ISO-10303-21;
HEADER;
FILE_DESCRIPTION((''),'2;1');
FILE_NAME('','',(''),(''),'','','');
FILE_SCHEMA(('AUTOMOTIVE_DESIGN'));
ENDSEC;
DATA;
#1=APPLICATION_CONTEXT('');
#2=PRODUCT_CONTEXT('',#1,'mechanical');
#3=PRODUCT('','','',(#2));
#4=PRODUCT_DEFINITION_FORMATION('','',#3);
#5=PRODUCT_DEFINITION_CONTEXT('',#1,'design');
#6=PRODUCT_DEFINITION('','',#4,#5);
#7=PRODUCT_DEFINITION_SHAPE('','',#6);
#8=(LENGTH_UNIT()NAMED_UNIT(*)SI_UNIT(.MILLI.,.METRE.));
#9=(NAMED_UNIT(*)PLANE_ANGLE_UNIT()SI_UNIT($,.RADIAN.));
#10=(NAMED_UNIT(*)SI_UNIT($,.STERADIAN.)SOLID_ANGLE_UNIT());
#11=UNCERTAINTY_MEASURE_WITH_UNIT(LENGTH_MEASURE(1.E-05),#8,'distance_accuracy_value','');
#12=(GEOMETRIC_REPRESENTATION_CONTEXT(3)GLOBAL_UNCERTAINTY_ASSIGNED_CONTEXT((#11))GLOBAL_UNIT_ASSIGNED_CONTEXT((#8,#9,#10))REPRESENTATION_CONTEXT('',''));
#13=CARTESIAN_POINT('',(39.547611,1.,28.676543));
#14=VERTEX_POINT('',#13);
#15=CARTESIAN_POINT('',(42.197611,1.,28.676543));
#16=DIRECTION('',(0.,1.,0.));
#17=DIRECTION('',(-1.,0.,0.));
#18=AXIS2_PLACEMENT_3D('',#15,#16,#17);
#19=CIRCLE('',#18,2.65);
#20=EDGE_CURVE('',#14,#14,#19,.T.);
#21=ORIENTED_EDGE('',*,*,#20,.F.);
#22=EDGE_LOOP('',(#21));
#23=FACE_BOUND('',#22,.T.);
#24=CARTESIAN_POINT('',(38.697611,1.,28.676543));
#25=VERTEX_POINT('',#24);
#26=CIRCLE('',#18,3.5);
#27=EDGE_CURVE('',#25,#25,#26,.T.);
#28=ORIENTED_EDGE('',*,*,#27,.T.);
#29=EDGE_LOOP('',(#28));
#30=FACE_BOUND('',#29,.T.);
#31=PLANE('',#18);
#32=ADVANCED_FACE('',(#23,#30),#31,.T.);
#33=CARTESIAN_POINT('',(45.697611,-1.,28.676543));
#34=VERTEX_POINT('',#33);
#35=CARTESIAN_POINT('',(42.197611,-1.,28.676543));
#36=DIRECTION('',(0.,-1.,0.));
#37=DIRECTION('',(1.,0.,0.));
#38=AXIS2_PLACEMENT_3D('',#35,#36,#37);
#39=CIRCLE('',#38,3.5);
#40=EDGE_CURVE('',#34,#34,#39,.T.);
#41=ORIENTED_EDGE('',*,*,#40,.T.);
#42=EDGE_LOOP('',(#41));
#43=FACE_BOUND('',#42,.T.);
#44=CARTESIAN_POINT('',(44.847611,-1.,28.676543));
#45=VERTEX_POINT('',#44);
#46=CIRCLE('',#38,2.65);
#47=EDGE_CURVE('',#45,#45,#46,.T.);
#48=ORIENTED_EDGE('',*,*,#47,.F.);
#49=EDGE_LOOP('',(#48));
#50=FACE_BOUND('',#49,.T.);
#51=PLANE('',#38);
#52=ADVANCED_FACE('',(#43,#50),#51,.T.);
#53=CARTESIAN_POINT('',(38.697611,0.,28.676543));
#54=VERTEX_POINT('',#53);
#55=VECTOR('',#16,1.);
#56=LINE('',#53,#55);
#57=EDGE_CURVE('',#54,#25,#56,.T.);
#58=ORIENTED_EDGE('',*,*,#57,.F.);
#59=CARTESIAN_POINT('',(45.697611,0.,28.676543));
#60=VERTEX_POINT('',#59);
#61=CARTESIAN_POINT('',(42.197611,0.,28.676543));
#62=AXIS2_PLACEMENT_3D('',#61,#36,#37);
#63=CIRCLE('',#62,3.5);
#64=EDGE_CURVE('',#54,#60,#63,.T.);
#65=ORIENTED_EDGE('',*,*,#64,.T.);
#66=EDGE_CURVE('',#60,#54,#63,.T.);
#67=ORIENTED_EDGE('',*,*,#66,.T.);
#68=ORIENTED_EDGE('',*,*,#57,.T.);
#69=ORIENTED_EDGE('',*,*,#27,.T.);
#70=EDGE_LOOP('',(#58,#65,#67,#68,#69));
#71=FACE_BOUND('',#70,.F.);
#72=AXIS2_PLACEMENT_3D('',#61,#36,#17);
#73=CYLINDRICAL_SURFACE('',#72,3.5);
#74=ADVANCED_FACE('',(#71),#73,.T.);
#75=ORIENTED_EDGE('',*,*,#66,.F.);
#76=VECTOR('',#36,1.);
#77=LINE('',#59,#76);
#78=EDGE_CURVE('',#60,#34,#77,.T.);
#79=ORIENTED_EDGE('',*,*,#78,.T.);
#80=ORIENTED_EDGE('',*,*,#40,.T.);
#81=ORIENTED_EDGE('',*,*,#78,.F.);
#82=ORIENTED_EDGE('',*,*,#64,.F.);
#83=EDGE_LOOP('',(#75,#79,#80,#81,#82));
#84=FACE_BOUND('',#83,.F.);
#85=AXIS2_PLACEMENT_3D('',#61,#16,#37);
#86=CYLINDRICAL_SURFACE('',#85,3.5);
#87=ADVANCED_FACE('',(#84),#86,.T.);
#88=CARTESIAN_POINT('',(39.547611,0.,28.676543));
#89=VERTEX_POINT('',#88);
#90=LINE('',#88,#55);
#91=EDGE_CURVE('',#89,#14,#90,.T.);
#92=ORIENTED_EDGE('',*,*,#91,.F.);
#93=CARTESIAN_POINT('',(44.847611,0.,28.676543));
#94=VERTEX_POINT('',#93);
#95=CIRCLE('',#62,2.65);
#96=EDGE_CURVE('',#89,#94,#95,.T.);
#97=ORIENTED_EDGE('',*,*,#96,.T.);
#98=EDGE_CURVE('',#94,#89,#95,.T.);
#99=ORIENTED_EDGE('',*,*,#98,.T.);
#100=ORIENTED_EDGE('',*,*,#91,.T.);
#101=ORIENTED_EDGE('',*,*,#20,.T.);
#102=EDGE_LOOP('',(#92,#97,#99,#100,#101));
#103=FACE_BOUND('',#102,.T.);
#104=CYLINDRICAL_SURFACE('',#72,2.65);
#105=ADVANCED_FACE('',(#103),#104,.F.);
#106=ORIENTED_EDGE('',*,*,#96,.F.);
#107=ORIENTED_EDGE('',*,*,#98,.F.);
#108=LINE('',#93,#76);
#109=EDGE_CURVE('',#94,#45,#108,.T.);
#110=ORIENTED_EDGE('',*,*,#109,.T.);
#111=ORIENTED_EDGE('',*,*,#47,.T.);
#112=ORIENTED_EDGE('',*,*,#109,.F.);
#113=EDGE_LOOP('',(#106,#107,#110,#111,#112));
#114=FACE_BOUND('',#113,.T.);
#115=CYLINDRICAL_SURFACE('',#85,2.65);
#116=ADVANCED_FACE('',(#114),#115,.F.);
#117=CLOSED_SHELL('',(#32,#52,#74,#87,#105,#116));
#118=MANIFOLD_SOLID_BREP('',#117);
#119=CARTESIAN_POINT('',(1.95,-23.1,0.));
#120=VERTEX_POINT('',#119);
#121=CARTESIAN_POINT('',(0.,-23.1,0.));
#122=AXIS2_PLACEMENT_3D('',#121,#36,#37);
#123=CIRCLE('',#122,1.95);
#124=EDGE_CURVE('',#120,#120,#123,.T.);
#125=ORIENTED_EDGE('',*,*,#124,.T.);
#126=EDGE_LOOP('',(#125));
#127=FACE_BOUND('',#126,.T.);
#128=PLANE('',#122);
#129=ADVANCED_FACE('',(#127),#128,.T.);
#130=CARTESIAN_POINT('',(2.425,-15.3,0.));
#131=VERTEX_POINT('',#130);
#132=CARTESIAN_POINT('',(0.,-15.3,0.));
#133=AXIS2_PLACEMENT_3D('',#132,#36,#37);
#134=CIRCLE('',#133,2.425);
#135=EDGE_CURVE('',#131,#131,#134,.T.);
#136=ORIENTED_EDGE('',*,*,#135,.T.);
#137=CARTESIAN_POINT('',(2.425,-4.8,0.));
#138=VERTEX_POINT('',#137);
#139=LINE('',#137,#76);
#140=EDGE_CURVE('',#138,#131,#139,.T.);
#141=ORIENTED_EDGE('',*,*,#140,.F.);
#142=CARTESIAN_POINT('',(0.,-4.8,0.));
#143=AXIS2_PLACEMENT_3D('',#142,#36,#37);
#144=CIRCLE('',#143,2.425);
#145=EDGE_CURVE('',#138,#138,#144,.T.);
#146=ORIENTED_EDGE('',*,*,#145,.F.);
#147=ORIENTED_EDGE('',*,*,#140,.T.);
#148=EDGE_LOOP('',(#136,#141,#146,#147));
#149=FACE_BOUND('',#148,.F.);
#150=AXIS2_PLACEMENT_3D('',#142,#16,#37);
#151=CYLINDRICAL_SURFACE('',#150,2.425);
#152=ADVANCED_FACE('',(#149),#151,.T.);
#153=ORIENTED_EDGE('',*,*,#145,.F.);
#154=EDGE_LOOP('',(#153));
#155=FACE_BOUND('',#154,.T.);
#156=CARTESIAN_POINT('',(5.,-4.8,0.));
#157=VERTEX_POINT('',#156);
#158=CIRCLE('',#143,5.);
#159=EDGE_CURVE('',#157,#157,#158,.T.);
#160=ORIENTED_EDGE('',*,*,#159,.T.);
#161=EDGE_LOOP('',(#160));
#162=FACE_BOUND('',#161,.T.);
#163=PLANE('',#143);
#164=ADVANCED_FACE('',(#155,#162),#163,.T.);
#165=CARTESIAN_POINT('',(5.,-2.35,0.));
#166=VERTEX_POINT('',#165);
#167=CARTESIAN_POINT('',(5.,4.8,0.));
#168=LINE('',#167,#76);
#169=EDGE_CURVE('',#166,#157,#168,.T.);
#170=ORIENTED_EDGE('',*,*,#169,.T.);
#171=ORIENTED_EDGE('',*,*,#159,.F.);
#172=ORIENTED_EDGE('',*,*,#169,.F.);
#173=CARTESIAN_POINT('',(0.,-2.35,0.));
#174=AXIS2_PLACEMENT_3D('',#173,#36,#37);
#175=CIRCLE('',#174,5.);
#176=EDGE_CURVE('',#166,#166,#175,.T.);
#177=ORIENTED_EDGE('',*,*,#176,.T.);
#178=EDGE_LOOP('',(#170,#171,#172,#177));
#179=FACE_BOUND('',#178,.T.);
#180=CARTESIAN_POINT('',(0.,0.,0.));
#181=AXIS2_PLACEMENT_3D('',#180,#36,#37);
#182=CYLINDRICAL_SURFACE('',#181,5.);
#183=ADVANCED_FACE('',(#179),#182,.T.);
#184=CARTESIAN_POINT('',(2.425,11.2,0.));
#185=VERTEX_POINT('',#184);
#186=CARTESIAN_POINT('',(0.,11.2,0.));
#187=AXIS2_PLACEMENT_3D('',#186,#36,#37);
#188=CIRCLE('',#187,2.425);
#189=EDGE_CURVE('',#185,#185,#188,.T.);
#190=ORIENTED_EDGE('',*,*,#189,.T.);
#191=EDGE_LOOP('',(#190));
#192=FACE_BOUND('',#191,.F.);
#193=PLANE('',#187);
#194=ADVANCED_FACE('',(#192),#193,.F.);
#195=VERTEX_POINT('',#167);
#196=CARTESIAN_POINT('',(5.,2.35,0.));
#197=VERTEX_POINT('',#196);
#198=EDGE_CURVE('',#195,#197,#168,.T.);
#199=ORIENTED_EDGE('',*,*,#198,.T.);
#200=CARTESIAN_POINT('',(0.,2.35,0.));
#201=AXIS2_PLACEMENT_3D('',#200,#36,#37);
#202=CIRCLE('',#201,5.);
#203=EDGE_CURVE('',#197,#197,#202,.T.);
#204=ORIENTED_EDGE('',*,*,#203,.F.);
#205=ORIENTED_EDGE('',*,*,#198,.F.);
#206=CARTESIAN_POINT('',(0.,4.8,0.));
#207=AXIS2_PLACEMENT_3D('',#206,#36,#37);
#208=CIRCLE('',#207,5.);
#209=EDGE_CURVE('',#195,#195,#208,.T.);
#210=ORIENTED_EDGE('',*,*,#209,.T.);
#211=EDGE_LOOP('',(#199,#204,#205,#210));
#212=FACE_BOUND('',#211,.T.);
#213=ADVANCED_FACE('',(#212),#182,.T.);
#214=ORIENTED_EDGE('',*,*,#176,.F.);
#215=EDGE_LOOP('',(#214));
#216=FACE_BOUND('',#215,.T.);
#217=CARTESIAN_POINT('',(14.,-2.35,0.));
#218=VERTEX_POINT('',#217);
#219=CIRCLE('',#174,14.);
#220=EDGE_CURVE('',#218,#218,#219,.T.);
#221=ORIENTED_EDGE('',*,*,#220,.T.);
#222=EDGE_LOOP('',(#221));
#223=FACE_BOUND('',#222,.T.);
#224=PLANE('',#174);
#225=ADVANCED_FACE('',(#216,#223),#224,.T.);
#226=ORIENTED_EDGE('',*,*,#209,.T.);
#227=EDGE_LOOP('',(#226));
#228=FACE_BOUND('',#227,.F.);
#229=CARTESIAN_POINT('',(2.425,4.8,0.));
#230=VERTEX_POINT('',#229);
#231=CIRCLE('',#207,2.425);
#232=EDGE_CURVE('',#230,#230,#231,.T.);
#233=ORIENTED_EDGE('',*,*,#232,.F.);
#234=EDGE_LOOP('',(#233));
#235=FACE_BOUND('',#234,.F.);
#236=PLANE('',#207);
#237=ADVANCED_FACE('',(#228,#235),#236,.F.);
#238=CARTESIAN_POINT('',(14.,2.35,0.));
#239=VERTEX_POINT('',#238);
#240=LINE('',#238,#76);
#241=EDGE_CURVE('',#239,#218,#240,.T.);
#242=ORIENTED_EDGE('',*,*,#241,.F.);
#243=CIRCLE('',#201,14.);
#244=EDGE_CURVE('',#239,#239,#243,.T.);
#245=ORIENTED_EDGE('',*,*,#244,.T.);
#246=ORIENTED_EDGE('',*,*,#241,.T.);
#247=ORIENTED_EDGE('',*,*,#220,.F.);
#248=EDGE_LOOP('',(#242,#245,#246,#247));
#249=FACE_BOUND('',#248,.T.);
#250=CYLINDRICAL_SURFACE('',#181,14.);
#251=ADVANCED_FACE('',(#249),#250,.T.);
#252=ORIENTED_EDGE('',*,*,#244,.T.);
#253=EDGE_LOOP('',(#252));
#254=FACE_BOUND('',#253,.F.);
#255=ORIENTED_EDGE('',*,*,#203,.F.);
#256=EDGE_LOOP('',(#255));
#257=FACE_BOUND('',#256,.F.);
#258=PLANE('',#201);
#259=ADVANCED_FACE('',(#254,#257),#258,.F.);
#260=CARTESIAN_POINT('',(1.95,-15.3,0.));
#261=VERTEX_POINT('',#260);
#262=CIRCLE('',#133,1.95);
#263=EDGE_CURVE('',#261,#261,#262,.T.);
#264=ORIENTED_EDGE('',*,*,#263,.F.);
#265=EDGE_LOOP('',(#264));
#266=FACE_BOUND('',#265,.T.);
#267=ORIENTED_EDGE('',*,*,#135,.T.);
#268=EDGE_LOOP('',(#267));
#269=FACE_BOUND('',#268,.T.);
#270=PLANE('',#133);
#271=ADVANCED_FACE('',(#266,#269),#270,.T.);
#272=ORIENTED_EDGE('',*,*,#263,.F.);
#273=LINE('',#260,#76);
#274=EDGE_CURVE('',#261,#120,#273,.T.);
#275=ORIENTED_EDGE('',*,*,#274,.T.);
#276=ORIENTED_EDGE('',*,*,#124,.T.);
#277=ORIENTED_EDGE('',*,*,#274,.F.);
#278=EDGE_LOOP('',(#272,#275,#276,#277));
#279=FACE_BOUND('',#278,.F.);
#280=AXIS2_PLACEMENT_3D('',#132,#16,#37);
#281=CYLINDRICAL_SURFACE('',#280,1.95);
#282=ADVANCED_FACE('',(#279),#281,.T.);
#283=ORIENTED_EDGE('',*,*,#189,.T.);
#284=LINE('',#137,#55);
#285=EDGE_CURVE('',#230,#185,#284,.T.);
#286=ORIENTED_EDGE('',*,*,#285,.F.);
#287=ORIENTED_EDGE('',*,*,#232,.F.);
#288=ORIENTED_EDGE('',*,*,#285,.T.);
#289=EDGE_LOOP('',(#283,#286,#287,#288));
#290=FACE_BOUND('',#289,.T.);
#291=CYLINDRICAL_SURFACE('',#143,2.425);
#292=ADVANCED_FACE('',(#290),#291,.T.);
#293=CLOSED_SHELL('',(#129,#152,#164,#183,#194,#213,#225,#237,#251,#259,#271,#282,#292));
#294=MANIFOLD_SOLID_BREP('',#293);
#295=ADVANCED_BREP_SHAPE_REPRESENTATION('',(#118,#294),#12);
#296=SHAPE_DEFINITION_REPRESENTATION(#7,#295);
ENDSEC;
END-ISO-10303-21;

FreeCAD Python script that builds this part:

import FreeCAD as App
import Part
import Sketcher
from FreeCAD import Vector
Q = App.Units.Quantity

doc = App.newDocument("Part")
body = doc.addObject("PartDesign::Body", "Body")

# Sketch on XZ plane
sketch1 = body.newObject("Sketcher::SketchObject", "Sketch")
sketch1.AttachmentSupport = (doc.getObject("XZ_Plane"), [""])
sketch1.MapMode = "FlatFace"
sketch1.addGeometry(Part.Circle(Vector(0, 0, 0), Vector(0, 0, 1), 14), False)
sketch1.addConstraint([
    Sketcher.Constraint("Coincident", 0, 3, -1, 1),
    Sketcher.Constraint("Diameter", 0, Q("28 mm")),
])
pad1 = body.newObject("PartDesign::Pad", "Pad")
pad1.Profile = sketch1
pad1.Length = 4.7
pad1.Midplane = True

# Sketch on XZ plane
sketch2 = body.newObject("Sketcher::SketchObject", "Sketch001")
sketch2.AttachmentSupport = (doc.getObject("XZ_Plane"), [""])
sketch2.MapMode = "FlatFace"
sketch2.addGeometry(Part.Circle(Vector(0, 0, 0), Vector(0, 0, 1), 5), False)
sketch2.addConstraint([
    Sketcher.Constraint("Coincident", 0, 3, -1, 1),
    Sketcher.Constraint("Diameter", 0, Q("10 mm")),
])
pad2 = body.newObject("PartDesign::Pad", "Pad001")
pad2.Profile = sketch2
pad2.Length = 9.6
pad2.Midplane = True

# Sketch on XZ plane
sketch3 = body.newObject("Sketcher::SketchObject", "Sketch002")
sketch3.AttachmentSupport = (doc.getObject("XZ_Plane"), [""])
sketch3.MapMode = "FlatFace"
sketch3.AttachmentOffset = App.Placement(Vector(0, 0, 4.8), App.Rotation())
sketch3.addGeometry(Part.Circle(Vector(0, 0, 0), Vector(0, 0, 1), 2.425), False)
sketch3.addConstraint([
    Sketcher.Constraint("Coincident", 0, 3, -1, 1),
    Sketcher.Constraint("Diameter", 0, Q("4.85 mm")),
])
pad3 = body.newObject("PartDesign::Pad", "Pad002")
pad3.Profile = sketch3
pad3.Type = "TwoLengths"
pad3.Length = 10.5
pad3.Length2 = 16

# Sketch on XZ plane
sketch4 = body.newObject("Sketcher::SketchObject", "Sketch003")
sketch4.AttachmentSupport = (doc.getObject("XZ_Plane"), [""])
sketch4.MapMode = "FlatFace"
sketch4.AttachmentOffset = App.Placement(Vector(0, 0, 15.3), App.Rotation())
sketch4.addGeometry(Part.Circle(Vector(0, 0, 0), Vector(0, 0, 1), 1.95), False)
sketch4.addConstraint([
    Sketcher.Constraint("Coincident", 0, 3, -1, 1),
    Sketcher.Constraint("Diameter", 0, Q("3.9 mm")),
])
pad4 = body.newObject("PartDesign::Pad", "Pad003")
pad4.Profile = sketch4
pad4.Length = 7.8
body2 = doc.addObject("PartDesign::Body", "Body001")

# Sketch on XZ plane
sketch5 = body2.newObject("Sketcher::SketchObject", "Sketch004")
sketch5.AttachmentSupport = (doc.getObject("XZ_Plane001"), [""])
sketch5.MapMode = "FlatFace"
sketch5.addGeometry([
    Part.Circle(Vector(42.197611, 28.676543, 0), Vector(0, 0, 1), 3.5),
    Part.Circle(Vector(42.197611, 28.676543, 0), Vector(0, 0, 1), 2.65),
], False)
sketch5.addConstraint([
    Sketcher.Constraint("Coincident", 1, 3, 0, 3),
    Sketcher.Constraint("Diameter", 0, Q("7 mm")),
    Sketcher.Constraint("Diameter", 1, Q("5.3 mm")),
    Sketcher.Constraint("DistanceX", -1, 1, 0, 3, Q("42.197611 mm")),
    Sketcher.Constraint("DistanceY", -1, 1, 0, 3, Q("28.676543 mm")),
])
pad5 = body2.newObject("PartDesign::Pad", "Pad004")
pad5.Profile = sketch5
pad5.Length = 1

# Sketch on XZ plane
sketch6 = body2.newObject("Sketcher::SketchObject", "Sketch005")
sketch6.AttachmentSupport = (doc.getObject("XZ_Plane001"), [""])
sketch6.MapMode = "FlatFace"
sketch6.addGeometry([
    Part.Circle(Vector(42.197611, 28.676543, 0), Vector(0, 0, 1), 3.5),
    Part.Circle(Vector(42.197611, 28.676543, 0), Vector(0, 0, 1), 2.65),
], False)
sketch6.addConstraint([
    Sketcher.Constraint("Coincident", 1, 3, 0, 3),
    Sketcher.Constraint("Diameter", 0, Q("7 mm")),
    Sketcher.Constraint("Diameter", 1, Q("5.3 mm")),
    Sketcher.Constraint("DistanceX", -1, 1, 0, 3, Q("42.197611 mm")),
    Sketcher.Constraint("DistanceY", -1, 1, 0, 3, Q("28.676543 mm")),
])
pad6 = body2.newObject("PartDesign::Pad", "Pad005")
pad6.Profile = sketch6
pad6.Length = 1
pad6.Reversed = True

doc.recompute()
